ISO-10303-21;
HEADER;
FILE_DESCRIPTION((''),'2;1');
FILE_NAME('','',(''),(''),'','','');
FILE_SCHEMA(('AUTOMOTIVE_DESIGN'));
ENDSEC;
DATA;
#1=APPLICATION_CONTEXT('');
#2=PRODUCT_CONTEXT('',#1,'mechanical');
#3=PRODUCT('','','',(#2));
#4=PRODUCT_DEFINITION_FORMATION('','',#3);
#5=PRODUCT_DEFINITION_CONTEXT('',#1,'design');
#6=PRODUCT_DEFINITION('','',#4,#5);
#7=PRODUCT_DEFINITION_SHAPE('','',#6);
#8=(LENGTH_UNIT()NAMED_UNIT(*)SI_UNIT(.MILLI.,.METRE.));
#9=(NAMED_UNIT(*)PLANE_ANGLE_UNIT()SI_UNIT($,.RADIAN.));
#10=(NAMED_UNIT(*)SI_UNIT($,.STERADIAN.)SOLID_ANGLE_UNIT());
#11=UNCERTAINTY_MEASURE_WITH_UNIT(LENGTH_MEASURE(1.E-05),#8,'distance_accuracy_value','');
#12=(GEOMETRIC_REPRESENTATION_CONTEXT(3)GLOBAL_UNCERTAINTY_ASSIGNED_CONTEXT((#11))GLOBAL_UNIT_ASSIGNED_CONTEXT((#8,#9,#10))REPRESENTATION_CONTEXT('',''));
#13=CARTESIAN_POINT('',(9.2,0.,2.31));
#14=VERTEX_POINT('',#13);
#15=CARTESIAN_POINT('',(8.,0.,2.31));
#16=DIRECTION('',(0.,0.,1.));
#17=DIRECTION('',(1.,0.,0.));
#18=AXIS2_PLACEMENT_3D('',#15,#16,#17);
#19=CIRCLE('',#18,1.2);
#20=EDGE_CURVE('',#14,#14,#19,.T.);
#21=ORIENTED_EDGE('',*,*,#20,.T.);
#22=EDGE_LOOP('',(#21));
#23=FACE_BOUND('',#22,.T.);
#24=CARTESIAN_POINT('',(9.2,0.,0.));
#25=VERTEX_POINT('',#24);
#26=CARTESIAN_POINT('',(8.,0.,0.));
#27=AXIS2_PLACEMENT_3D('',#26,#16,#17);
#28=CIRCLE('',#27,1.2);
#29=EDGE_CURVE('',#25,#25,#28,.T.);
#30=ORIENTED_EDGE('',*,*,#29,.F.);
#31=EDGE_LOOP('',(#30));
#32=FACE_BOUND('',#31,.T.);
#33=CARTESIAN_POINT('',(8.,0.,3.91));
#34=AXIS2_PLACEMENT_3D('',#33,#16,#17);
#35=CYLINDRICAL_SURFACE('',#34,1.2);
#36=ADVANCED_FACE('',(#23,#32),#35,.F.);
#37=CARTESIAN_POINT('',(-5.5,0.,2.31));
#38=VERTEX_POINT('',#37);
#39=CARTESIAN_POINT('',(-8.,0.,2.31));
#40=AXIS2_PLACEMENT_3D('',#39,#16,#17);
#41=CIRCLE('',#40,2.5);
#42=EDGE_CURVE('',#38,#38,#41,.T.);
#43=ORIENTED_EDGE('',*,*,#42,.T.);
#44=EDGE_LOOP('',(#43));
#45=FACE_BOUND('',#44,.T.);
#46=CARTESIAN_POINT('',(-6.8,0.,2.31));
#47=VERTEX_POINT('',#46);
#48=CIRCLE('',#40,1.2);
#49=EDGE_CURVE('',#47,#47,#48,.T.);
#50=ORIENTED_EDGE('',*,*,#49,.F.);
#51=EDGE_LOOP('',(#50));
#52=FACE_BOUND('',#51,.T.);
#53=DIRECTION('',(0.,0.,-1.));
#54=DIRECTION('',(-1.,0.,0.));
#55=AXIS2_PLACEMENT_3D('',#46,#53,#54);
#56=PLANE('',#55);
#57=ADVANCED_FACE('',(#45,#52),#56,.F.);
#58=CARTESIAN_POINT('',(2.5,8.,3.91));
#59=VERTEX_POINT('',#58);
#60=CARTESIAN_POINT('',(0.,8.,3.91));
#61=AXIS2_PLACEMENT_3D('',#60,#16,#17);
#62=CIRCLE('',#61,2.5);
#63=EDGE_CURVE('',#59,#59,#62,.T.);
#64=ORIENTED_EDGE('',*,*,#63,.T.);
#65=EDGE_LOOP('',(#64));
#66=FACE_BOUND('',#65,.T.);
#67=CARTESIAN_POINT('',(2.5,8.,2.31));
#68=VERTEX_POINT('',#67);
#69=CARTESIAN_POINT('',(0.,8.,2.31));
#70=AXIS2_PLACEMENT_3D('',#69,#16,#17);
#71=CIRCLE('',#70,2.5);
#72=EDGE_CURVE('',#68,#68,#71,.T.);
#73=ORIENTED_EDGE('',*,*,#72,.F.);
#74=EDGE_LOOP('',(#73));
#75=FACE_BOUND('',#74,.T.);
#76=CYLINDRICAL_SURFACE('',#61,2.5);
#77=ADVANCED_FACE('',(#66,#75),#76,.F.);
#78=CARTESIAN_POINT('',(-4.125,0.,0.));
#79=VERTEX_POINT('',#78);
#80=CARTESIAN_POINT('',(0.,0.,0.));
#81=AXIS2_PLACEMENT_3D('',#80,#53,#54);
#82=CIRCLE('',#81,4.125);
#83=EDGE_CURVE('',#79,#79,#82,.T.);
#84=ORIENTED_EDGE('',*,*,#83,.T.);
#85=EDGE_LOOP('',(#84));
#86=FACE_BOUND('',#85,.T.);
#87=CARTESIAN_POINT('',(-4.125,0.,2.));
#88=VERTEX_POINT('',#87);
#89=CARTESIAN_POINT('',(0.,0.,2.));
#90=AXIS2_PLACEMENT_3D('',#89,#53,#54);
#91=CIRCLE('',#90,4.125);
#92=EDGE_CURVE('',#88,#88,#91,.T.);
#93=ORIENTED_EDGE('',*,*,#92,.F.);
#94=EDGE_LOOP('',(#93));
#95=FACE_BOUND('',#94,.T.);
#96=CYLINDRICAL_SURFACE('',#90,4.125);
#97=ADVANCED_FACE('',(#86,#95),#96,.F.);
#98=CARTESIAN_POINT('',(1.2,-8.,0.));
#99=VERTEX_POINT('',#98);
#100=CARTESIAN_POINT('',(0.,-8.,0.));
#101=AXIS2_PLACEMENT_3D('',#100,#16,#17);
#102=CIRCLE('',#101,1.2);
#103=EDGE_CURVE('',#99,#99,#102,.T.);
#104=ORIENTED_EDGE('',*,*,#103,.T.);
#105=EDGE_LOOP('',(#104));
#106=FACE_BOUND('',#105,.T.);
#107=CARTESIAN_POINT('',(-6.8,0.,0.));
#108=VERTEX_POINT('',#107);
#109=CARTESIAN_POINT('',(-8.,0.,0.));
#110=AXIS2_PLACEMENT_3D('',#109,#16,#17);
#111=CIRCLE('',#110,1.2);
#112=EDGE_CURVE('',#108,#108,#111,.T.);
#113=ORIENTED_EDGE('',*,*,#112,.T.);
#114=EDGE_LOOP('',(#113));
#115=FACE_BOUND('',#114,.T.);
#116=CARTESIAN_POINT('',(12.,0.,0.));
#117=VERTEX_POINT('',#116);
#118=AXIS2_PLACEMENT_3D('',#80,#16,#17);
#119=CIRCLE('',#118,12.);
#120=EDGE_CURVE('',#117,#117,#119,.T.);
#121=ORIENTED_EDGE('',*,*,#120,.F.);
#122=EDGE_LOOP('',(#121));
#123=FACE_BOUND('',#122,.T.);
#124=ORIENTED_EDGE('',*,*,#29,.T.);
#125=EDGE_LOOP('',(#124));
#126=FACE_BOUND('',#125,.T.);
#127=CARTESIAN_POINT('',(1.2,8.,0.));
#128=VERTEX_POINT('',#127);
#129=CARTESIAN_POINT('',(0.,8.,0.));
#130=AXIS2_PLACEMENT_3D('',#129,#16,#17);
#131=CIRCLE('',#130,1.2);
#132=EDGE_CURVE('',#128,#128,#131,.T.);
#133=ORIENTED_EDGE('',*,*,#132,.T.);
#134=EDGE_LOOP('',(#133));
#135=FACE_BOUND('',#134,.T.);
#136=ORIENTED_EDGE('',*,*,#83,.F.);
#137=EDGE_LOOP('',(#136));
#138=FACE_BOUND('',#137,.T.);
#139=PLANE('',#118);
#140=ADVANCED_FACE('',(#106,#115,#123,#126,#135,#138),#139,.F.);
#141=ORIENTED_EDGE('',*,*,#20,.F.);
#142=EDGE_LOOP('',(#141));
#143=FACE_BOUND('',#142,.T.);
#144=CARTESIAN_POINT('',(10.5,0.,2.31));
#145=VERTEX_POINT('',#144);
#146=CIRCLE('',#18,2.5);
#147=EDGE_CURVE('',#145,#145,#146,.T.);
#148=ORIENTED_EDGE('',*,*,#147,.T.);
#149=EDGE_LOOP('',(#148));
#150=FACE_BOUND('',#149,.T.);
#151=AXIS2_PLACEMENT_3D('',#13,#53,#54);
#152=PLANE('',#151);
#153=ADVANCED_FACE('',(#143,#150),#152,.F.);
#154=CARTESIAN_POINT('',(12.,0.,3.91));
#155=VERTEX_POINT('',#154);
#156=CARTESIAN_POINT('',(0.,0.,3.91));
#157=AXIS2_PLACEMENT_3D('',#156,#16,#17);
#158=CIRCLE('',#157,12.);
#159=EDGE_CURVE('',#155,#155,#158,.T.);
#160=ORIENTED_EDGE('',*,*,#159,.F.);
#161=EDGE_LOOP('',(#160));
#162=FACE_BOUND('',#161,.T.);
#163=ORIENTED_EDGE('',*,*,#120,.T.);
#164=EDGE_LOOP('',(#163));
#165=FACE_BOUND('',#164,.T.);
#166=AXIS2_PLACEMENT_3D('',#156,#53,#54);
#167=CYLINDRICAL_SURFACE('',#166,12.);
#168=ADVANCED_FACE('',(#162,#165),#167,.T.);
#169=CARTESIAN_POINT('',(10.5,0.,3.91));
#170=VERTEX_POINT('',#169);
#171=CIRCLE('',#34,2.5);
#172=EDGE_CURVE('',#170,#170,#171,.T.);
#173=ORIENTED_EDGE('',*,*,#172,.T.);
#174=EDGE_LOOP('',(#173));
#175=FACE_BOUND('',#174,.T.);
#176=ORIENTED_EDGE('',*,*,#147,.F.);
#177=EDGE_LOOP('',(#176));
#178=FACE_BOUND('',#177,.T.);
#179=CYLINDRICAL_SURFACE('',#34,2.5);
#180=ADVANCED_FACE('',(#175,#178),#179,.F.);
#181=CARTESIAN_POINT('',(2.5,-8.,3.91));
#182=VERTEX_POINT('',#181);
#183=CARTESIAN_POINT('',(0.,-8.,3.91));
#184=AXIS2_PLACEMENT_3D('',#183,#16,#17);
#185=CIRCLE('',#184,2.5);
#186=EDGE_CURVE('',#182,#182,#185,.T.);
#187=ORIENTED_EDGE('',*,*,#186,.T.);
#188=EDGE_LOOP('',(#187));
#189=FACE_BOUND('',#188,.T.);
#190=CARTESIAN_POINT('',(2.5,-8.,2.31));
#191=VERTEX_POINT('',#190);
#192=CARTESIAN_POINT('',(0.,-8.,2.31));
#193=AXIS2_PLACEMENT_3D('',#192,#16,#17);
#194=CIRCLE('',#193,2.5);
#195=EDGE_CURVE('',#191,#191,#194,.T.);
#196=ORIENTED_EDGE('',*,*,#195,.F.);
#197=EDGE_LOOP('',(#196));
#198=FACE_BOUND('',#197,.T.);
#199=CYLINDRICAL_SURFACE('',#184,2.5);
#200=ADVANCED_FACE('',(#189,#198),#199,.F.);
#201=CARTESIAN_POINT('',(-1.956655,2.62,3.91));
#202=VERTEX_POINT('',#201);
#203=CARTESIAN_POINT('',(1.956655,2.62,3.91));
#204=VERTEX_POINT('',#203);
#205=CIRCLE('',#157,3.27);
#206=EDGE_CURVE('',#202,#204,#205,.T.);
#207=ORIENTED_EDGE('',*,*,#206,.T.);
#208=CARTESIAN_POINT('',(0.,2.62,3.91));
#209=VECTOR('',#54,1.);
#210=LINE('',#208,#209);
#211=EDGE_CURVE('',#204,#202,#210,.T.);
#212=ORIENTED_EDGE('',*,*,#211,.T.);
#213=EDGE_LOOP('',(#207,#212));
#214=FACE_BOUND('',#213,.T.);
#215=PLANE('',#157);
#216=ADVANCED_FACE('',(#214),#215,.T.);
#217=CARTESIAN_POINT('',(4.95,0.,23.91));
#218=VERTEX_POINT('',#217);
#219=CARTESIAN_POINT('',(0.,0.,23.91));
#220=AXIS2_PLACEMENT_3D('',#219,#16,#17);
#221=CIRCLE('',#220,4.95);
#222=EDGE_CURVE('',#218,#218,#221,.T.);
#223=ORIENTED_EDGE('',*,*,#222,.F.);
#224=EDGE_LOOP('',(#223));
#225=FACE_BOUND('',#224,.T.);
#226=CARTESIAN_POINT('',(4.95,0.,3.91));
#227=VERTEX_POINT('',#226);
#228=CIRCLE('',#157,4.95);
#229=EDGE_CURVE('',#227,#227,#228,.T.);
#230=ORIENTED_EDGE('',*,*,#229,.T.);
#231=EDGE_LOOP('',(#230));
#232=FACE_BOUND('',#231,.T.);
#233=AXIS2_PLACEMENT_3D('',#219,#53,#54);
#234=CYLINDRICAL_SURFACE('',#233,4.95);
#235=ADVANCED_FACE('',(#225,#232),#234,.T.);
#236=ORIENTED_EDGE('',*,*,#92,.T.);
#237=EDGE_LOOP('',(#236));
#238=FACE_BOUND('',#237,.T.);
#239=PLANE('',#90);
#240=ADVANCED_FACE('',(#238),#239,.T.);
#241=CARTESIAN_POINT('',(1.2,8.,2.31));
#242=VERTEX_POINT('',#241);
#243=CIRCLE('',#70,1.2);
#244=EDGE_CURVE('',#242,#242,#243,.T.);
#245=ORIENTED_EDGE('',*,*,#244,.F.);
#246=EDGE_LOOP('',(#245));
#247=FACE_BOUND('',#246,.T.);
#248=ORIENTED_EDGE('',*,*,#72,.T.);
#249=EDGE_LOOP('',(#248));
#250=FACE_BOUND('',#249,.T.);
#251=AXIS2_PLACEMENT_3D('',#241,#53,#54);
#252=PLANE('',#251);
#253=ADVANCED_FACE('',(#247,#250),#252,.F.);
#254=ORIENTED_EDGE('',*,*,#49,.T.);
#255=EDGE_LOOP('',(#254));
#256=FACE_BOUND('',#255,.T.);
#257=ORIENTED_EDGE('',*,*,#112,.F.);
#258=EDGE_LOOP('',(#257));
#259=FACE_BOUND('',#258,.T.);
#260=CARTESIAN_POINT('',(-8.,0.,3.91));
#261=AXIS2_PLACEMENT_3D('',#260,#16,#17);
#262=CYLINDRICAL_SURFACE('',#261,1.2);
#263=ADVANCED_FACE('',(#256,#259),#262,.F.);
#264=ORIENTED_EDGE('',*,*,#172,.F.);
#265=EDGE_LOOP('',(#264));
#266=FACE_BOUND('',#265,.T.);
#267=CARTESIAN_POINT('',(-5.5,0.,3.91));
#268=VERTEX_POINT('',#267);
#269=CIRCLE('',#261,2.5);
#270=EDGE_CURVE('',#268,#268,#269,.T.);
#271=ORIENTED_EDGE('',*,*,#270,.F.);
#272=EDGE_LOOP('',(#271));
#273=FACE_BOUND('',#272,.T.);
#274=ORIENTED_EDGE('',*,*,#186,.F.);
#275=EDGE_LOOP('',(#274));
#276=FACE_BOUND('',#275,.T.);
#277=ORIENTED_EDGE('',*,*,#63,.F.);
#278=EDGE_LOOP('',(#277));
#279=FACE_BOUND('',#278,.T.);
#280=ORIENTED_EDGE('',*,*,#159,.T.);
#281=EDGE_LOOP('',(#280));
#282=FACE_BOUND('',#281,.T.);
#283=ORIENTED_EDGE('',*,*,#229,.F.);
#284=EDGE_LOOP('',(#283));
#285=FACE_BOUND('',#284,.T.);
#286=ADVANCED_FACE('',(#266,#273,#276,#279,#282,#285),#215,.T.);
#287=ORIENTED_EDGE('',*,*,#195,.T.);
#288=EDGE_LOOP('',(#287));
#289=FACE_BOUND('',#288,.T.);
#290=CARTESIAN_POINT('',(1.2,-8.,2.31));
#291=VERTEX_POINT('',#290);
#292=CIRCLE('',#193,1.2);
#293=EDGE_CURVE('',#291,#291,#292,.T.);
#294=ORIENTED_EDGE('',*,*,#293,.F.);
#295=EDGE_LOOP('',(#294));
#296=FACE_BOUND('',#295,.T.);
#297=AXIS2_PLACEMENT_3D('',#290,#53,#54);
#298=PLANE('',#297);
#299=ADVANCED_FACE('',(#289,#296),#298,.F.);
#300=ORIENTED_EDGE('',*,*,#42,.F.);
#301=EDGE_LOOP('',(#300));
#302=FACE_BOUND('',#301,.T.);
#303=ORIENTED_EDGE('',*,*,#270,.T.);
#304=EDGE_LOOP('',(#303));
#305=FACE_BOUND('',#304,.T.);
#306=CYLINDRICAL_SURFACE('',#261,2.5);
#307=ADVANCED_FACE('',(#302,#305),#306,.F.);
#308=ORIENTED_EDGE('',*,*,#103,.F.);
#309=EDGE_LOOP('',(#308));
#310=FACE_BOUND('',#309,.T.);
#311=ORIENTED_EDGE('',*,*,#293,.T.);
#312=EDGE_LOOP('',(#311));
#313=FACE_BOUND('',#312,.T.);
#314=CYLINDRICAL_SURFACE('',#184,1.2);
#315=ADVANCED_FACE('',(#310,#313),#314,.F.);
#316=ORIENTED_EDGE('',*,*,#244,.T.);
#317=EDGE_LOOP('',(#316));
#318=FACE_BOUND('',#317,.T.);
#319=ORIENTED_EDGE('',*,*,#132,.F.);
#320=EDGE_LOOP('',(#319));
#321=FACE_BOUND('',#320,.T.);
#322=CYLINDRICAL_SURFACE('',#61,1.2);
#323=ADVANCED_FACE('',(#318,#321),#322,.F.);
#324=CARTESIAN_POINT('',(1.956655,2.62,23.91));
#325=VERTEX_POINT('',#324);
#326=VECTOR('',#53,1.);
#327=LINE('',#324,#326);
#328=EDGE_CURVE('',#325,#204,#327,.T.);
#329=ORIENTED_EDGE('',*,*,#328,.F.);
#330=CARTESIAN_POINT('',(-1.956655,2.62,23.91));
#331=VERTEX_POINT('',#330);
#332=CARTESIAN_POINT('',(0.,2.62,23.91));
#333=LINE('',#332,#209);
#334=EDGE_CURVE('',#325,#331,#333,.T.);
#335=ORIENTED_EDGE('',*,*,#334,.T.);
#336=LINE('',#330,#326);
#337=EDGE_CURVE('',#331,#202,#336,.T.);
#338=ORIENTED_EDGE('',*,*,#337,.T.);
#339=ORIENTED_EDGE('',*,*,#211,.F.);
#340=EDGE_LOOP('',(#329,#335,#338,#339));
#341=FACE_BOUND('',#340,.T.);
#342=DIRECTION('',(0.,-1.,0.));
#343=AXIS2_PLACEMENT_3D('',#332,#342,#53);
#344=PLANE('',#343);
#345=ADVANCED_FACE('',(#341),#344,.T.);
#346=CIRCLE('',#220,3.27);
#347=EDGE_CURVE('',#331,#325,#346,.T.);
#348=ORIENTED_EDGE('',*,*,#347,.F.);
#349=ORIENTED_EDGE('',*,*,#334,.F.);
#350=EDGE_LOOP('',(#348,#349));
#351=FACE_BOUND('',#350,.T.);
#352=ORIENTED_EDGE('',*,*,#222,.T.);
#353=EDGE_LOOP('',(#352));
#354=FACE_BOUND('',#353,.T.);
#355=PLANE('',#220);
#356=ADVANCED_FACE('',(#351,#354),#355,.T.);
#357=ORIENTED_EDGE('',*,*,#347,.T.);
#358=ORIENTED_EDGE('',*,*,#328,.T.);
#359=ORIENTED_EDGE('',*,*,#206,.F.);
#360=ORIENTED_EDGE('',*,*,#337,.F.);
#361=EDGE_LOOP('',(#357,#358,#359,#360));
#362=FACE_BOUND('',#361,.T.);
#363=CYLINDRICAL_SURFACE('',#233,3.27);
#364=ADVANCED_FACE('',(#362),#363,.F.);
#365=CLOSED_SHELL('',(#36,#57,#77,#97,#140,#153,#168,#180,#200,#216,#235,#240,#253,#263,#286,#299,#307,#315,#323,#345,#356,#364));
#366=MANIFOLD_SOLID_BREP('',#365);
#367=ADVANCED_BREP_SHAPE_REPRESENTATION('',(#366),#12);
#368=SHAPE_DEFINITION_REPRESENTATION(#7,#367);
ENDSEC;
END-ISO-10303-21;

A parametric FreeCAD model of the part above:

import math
import FreeCAD as App
import Part
import Sketcher

V = App.Vector
Q = App.Units.Quantity

doc = App.newDocument("Part")
body = doc.addObject("PartDesign::Body", "Body")

sketch1 = body.newObject("Sketcher::SketchObject", "Sketch")
sketch1.AttachmentSupport = (doc.getObject("XY_Plane"), [""])
sketch1.MapMode = "FlatFace"
sketch1.addGeometry(Part.Circle(V(0, 0, 0), V(0, 0, 1), 12), False)
sketch1.addConstraint([
    Sketcher.Constraint("Coincident", 0, 3, -1, 1),
    Sketcher.Constraint("Diameter", 0, Q("24 mm")),
])
pad1 = body.newObject("PartDesign::Pad", "Pad")
pad1.Profile = sketch1
pad1.Length = 3.91

sketch2 = body.newObject("Sketcher::SketchObject", "Sketch001")
sketch2.AttachmentSupport = (doc.getObject("XY_Plane"), [""])
sketch2.MapMode = "FlatFace"
sketch2.addGeometry(Part.Circle(V(0, 0, 0), V(0, 0, 1), 4.125), False)
sketch2.addConstraint([
    Sketcher.Constraint("Coincident", 0, 3, -1, 1),
    Sketcher.Constraint("Diameter", 0, Q("8.25 mm")),
])
pocket1 = body.newObject("PartDesign::Pocket", "Pocket")
pocket1.Profile = sketch2
pocket1.Length = 2
pocket1.Reversed = True

sketch3 = body.newObject("Sketcher::SketchObject", "Sketch002")
sketch3.AttachmentSupport = (doc.getObject("XY_Plane"), [""])
sketch3.MapMode = "FlatFace"
sketch3.AttachmentOffset = App.Placement(V(0, 0, 3.91), App.Rotation())
sketch3.addGeometry([
    Part.ArcOfCircle(Part.Circle(V(0, 0, 0), V(0, 0, 1), 4.95), math.radians(-41.346111), math.radians(0)),
    Part.ArcOfCircle(Part.Circle(V(0, 0, 0), V(0, 0, 1), 4.95), math.radians(0), math.radians(221.346111)),
    Part.ArcOfCircle(Part.Circle(V(0, 0, 0), V(0, 0, 1), 4.95), math.radians(-138.653889), math.radians(-41.346111)),
    Part.ArcOfCircle(Part.Circle(V(0, 0, 0), V(0, 0, 1), 3.27), math.radians(-90), math.radians(53.247073)),
    Part.ArcOfCircle(Part.Circle(V(0, 0, 0), V(0, 0, 1), 3.27), math.radians(126.752927), math.radians(270)),
    Part.LineSegment(V(-1.956655, 2.62, 0), V(1.956655, 2.62, 0)),
], False)
sketch3.addConstraint([
    Sketcher.Constraint("Tangent", 0, 2, 1, 1),
    Sketcher.Constraint("Tangent", 1, 2, 2, 1),
    Sketcher.Constraint("Tangent", 2, 2, 0, 1),
    Sketcher.Constraint("Tangent", 3, 1, 4, 2),
    Sketcher.Constraint("Coincident", 4, 1, 5, 1),
    Sketcher.Constraint("Coincident", 5, 2, 3, 2),
    Sketcher.Constraint("Horizontal", 5),
    Sketcher.Constraint("Coincident", 0, 3, -1, 1),
    Sketcher.Constraint("Coincident", 3, 3, -1, 1),
    Sketcher.Constraint("Equal", 3, 4),
    Sketcher.Constraint("PointOnObject", 0, 2, -1),
    Sketcher.Constraint("PointOnObject", 3, 1, -2),
    Sketcher.Constraint("Horizontal", 1, 2, 2, 2),
    Sketcher.Constraint("Horizontal", 2, 2, 3, 1),
    Sketcher.Constraint("Radius", 0, Q("4.95 mm")),
    Sketcher.Constraint("Radius", 3, Q("3.27 mm")),
    Sketcher.Constraint("DistanceY", -1, 1, 4, 1, Q("2.62 mm")),
])
pad2 = body.newObject("PartDesign::Pad", "Pad001")
pad2.Profile = sketch3
pad2.Length = 20

sketch4 = body.newObject("Sketcher::SketchObject", "Sketch003")
sketch4.AttachmentSupport = (doc.getObject("XY_Plane"), [""])
sketch4.MapMode = "FlatFace"
sketch4.AttachmentOffset = App.Placement(V(0, 0, 3.91), App.Rotation())
sketch4.addGeometry(Part.Circle(V(0, 8, 0), V(0, 0, 1), 1.2), False)
sketch4.addConstraint([
    Sketcher.Constraint("PointOnObject", 0, 3, -2),
    Sketcher.Constraint("Diameter", 0, Q("2.4 mm")),
    Sketcher.Constraint("DistanceY", -1, 1, 0, 3, Q("8 mm")),
])
doc.recompute()
hole = body.newObject("PartDesign::Hole", "Hole")
hole.Profile = sketch4
hole.ThreadType = "None"
hole.Diameter = 2.4
hole.DepthType = "ThroughAll"
hole.HoleCutType = "Counterbore"
hole.HoleCutDiameter = 5
hole.HoleCutDepth = 1.6
doc.recompute()

polarpattern = body.newObject("PartDesign::PolarPattern", "PolarPattern")
polarpattern.Originals = [hole]
polarpattern.Axis = (doc.getObject("Z_Axis"), [""])
polarpattern.Angle = 360
polarpattern.Occurrences = 4
body.Tip = polarpattern

doc.recompute()
